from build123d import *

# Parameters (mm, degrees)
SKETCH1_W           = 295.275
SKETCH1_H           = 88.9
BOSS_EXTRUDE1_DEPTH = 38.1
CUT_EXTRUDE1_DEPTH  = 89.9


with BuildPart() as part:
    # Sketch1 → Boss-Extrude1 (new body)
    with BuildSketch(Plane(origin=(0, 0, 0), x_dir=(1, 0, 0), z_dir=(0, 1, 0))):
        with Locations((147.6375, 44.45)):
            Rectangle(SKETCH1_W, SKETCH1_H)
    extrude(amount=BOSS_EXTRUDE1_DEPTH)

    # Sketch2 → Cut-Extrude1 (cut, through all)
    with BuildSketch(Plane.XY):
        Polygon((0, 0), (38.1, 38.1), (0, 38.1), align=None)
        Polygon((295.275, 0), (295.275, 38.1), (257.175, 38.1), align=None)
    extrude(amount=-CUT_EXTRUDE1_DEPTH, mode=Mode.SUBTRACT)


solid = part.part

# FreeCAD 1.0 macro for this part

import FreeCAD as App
import Part
import Sketcher
Q = App.Units.Quantity

doc = App.newDocument("Part")
body = doc.addObject("PartDesign::Body", "Body")

sketch1 = body.newObject("Sketcher::SketchObject", "Sketch")
sketch1.AttachmentSupport = (doc.getObject("XZ_Plane"), [""])
sketch1.MapMode = "FlatFace"
sketch1.addGeometry([
    Part.LineSegment(App.Vector(0, -88.9, 0), App.Vector(0, 0, 0)),
    Part.LineSegment(App.Vector(0, 0, 0), App.Vector(295.275, 0, 0)),
    Part.LineSegment(App.Vector(295.275, 0, 0), App.Vector(295.275, -88.9, 0)),
    Part.LineSegment(App.Vector(295.275, -88.9, 0), App.Vector(0, -88.9, 0)),
], False)
sketch1.addConstraint([
    Sketcher.Constraint("Coincident", 0, 2, 1, 1),
    Sketcher.Constraint("Coincident", 1, 2, 2, 1),
    Sketcher.Constraint("Coincident", 2, 2, 3, 1),
    Sketcher.Constraint("Coincident", 3, 2, 0, 1),
    Sketcher.Constraint("Vertical", 0),
    Sketcher.Constraint("Horizontal", 1),
    Sketcher.Constraint("Vertical", 2),
    Sketcher.Constraint("Horizontal", 3),
    Sketcher.Constraint("Coincident", 0, 2, -1, 1),
    Sketcher.Constraint("DistanceY", 0, 1, 0, 2, Q("3.5 in")),
    Sketcher.Constraint("DistanceX", 1, 1, 1, 2, Q("11.625 in")),
])
pad1 = body.newObject("PartDesign::Pad", "Pad")
pad1.Profile = sketch1
pad1.Length = Q("1.5 in")
pad1.Reversed = True

sketch2 = body.newObject("Sketcher::SketchObject", "Sketch001")
sketch2.AttachmentSupport = (doc.getObject("XY_Plane"), [""])
sketch2.MapMode = "FlatFace"
sketch2.addGeometry([
    Part.LineSegment(App.Vector(0, 0, 0), App.Vector(38.1, 38.1, 0)),
    Part.LineSegment(App.Vector(38.1, 38.1, 0), App.Vector(0, 38.1, 0)),
    Part.LineSegment(App.Vector(0, 38.1, 0), App.Vector(0, 0, 0)),
    Part.LineSegment(App.Vector(295.275, 0, 0), App.Vector(295.275, 38.1, 0)),
    Part.LineSegment(App.Vector(295.275, 38.1, 0), App.Vector(257.175, 38.1, 0)),
    Part.LineSegment(App.Vector(257.175, 38.1, 0), App.Vector(295.275, 0, 0)),
], False)
sketch2.addConstraint([
    Sketcher.Constraint("Coincident", 0, 2, 1, 1),
    Sketcher.Constraint("Coincident", 1, 2, 2, 1),
    Sketcher.Constraint("Coincident", 2, 2, 0, 1),
    Sketcher.Constraint("Coincident", 3, 2, 4, 1),
    Sketcher.Constraint("Coincident", 4, 2, 5, 1),
    Sketcher.Constraint("Coincident", 5, 2, 3, 1),
    Sketcher.Constraint("Horizontal", 1),
    Sketcher.Constraint("Vertical", 2),
    Sketcher.Constraint("Vertical", 3),
    Sketcher.Constraint("Horizontal", 4),
    Sketcher.Constraint("Coincident", 2, 2, -1, 1),
    Sketcher.Constraint("PointOnObject", 5, 2, -1),
    Sketcher.Constraint("Perpendicular", 0, 5),
    Sketcher.Constraint("Horizontal", 1, 2, 3, 2),
    Sketcher.Constraint("Equal", 1, 4),
    Sketcher.Constraint("DistanceX", 1, 2, 1, 1, Q("1.5 in")),
    Sketcher.Constraint("DistanceX", -1, 1, 3, 2, Q("11.625 in")),
])
pocket1 = body.newObject("PartDesign::Pocket", "Pocket")
pocket1.Profile = sketch2
pocket1.Type = "ThroughAll"

doc.recompute()
